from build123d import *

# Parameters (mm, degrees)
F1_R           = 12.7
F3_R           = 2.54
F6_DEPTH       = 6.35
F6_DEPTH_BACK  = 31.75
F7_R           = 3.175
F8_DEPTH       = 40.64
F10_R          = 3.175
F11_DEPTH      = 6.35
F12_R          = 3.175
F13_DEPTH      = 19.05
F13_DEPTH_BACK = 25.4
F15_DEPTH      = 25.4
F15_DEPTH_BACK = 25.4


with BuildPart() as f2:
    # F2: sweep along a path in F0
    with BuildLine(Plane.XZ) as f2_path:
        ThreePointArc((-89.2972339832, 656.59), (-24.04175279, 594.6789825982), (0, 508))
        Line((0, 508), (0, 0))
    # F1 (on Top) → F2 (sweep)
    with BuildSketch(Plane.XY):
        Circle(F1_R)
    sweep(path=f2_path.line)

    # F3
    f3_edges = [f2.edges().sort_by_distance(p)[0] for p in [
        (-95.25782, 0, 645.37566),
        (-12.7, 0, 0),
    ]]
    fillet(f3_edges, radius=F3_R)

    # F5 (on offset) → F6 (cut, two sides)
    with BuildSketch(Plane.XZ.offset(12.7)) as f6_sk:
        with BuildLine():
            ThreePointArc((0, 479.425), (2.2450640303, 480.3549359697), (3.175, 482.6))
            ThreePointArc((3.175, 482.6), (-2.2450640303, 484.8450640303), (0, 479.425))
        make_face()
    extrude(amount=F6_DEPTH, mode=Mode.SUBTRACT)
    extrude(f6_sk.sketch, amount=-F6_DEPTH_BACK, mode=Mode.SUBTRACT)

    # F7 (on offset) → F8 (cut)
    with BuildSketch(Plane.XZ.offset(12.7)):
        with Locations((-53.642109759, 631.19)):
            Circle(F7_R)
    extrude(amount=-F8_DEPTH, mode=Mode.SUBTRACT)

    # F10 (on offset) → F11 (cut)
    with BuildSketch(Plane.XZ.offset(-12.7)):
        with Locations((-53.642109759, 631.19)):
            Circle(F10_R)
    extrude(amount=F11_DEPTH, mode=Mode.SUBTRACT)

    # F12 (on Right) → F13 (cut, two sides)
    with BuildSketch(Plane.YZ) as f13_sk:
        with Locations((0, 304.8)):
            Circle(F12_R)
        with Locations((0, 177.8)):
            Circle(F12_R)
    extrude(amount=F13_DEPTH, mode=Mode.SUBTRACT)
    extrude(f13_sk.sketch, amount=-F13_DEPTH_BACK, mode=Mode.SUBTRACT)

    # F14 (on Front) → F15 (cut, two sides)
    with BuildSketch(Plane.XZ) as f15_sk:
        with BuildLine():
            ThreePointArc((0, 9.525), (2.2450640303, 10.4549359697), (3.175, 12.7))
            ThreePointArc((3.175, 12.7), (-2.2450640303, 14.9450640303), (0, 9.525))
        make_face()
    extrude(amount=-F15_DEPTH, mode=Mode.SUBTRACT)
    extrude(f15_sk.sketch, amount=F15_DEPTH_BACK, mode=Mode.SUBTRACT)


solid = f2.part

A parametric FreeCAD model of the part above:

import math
import FreeCAD as App
import Part
import Sketcher
from FreeCAD import Vector
Q = App.Units.Quantity


def edges_at(feature, points):
    """Names of the edges that pass closest to the given points."""
    edges = feature.Shape.Edges
    near = lambda p: min(range(len(edges)), key=lambda i: edges[i].distToShape(Part.Vertex(*p))[0])
    return sorted({f"Edge{near(p) + 1}" for p in points})

doc = App.newDocument("Part")
params = doc.addObject("Spreadsheet::Sheet", "Params")
for row, (alias, value) in enumerate([
    ("sketch1_diameter", "1 in"),
    ("sketch2_height", "20 in"),
    ("sketch2_radius", "6.625 in"),
    ("fillet_radius", "0.1 in"),
    ("sketch3_radius", "0.125 in"),
    ("sketch4_diameter", "0.25 in"),
    ("pocket2_length", "1.6 in"),
    ("sketch5_diameter", "0.25 in"),
    ("pocket3_length", "0.25 in"),
    ("sketch6_diameter", "0.25 in"),
    ("sketch7_radius", "0.125 in"),
], start=1):
    params.set(f"A{row}", alias)
    params.set(f"B{row}", "=" + value)
    params.setAlias(f"B{row}", alias)

body = doc.addObject("PartDesign::Body", "Body")

# Sketch on XY plane
sketch1 = body.newObject("Sketcher::SketchObject", "Sketch")
sketch1.AttachmentSupport = (doc.getObject("XY_Plane"), [""])
sketch1.MapMode = "FlatFace"
sketch1.addGeometry(Part.Circle(Vector(0, 0, 0), Vector(0, 0, 1), 13), False)
sketch1.addConstraint([
    Sketcher.Constraint("Coincident", 0, 3, -1, 1),
    Sketcher.Constraint("Diameter", 0, Q("1 in")),
])
sketch1.setExpression("Constraints[1]", "Params.sketch1_diameter")

# Sketch on XZ plane
sketch2 = body.newObject("Sketcher::SketchObject", "Sketch001")
sketch2.AttachmentSupport = (doc.getObject("XZ_Plane"), [""])
sketch2.MapMode = "FlatFace"
sketch2.addGeometry([
    Part.ArcOfCircle(Part.Circle(Vector(-168, 508, 0), Vector(0, 0, 1), 168), math.radians(0), math.radians(62)),
    Part.LineSegment(Vector(0, 508, 0), Vector(0, 0, 0)),
], False)
sketch2.addConstraint([
    Sketcher.Constraint("Tangent", 0, 1, 1, 1),
    Sketcher.Constraint("Vertical", 1),
    Sketcher.Constraint("Coincident", 1, 2, -1, 1),
    Sketcher.Constraint("DistanceY", 1, 2, 1, 1, Q("20 in")),
    Sketcher.Constraint("Radius", 0, Q("6.625 in")),
    Sketcher.Constraint("DistanceY", -1, 1, 0, 2, Q("25.85 in")),
])
sketch2.setExpression("Constraints[3]", "Params.sketch2_height")
sketch2.setExpression("Constraints[4]", "Params.sketch2_radius")
doc.recompute()

additivepipe = body.newObject("PartDesign::AdditivePipe", "AdditivePipe")
additivepipe.Profile = sketch1
additivepipe.Spine = (sketch2, ["Edge1", "Edge2"])
doc.recompute()

fillet = body.newObject("PartDesign::Fillet", "Fillet")
fillet.Base = (additivepipe, edges_at(additivepipe, [(-95.258, 0, 645.376), (-12.7, 0, 0)]))
fillet.setExpression("Radius", "Params.fillet_radius")

# Sketch on XZ plane
sketch3 = body.newObject("Sketcher::SketchObject", "Sketch002")
sketch3.AttachmentSupport = (doc.getObject("XZ_Plane"), [""])
sketch3.MapMode = "FlatFace"
sketch3.AttachmentOffset = App.Placement(Vector(0, 0, 0.5 * 25.4), App.Rotation())
sketch3.addGeometry([
    Part.ArcOfCircle(Part.Circle(Vector(0, 482.6, 0), Vector(0, 0, 1), 3.2), math.radians(-90), math.radians(0)),
    Part.ArcOfCircle(Part.Circle(Vector(0, 482.6, 0), Vector(0, 0, 1), 3.2), math.radians(0), math.radians(270)),
], False)
sketch3.addConstraint([
    Sketcher.Constraint("Tangent", 0, 1, 1, 2),
    Sketcher.Constraint("Coincident", 1, 1, 0, 2),
    Sketcher.Constraint("PointOnObject", 0, 3, -2),
    Sketcher.Constraint("PointOnObject", 0, 1, -2),
    Sketcher.Constraint("Horizontal", 0, 3, 1, 1),
    Sketcher.Constraint("DistanceY", -1, 1, 0, 3, Q("19 in")),
    Sketcher.Constraint("Radius", 0, Q("0.125 in")),
])
sketch3.setExpression("Constraints[6]", "Params.sketch3_radius")
pocket1 = body.newObject("PartDesign::Pocket", "Pocket")
pocket1.Profile = sketch3
pocket1.Type = "ThroughAll"
pocket1.Midplane = True

# Sketch on XZ plane
sketch4 = body.newObject("Sketcher::SketchObject", "Sketch003")
sketch4.AttachmentSupport = (doc.getObject("XZ_Plane"), [""])
sketch4.MapMode = "FlatFace"
sketch4.AttachmentOffset = App.Placement(Vector(0, 0, 0.5 * 25.4), App.Rotation())
sketch4.addGeometry(Part.Circle(Vector(-53.6, 631.2, 0), Vector(0, 0, 1), 3.2), False)
sketch4.addConstraint([
    Sketcher.Constraint("Diameter", 0, Q("0.25 in")),
    Sketcher.Constraint("DistanceY", -1, 1, 0, 3, Q("24.85 in")),
    Sketcher.Constraint("DistanceX", 0, 3, -1, 1, Q("53.64211 mm")),
])
sketch4.setExpression("Constraints[0]", "Params.sketch4_diameter")
pocket2 = body.newObject("PartDesign::Pocket", "Pocket001")
pocket2.Profile = sketch4
pocket2.setExpression("Length", "Params.pocket2_length")

# Sketch on XZ plane
sketch5 = body.newObject("Sketcher::SketchObject", "Sketch004")
sketch5.AttachmentSupport = (doc.getObject("XZ_Plane"), [""])
sketch5.MapMode = "FlatFace"
sketch5.AttachmentOffset = App.Placement(Vector(0, 0, -0.5 * 25.4), App.Rotation())
sketch5.addGeometry(Part.Circle(Vector(-53.6, 631.2, 0), Vector(0, 0, 1), 3.2), False)
sketch5.addConstraint([
    Sketcher.Constraint("Diameter", 0, Q("0.25 in")),
    Sketcher.Constraint("DistanceY", -1, 1, 0, 3, Q("24.85 in")),
    Sketcher.Constraint("DistanceX", 0, 3, -1, 1, Q("53.64211 mm")),
])
sketch5.setExpression("Constraints[0]", "Params.sketch5_diameter")
pocket3 = body.newObject("PartDesign::Pocket", "Pocket002")
pocket3.Profile = sketch5
pocket3.setExpression("Length", "Params.pocket3_length")
pocket3.Reversed = True

# Sketch on YZ plane
sketch6 = body.newObject("Sketcher::SketchObject", "Sketch005")
sketch6.AttachmentSupport = (doc.getObject("YZ_Plane"), [""])
sketch6.MapMode = "FlatFace"
sketch6.addGeometry([
    Part.Circle(Vector(0, 304.8, 0), Vector(0, 0, 1), 3.2),
    Part.Circle(Vector(0, 177.8, 0), Vector(0, 0, 1), 3.2),
], False)
sketch6.addConstraint([
    Sketcher.Constraint("Equal", 0, 1),
    Sketcher.Constraint("PointOnObject", 0, 3, -2),
    Sketcher.Constraint("PointOnObject", 1, 3, -2),
    Sketcher.Constraint("Diameter", 0, Q("0.25 in")),
    Sketcher.Constraint("DistanceY", -1, 1, 0, 3, Q("12 in")),
    Sketcher.Constraint("DistanceY", -1, 1, 1, 3, Q("7 in")),
])
sketch6.setExpression("Constraints[3]", "Params.sketch6_diameter")
pocket4 = body.newObject("PartDesign::Pocket", "Pocket003")
pocket4.Profile = sketch6
pocket4.Type = "ThroughAll"
pocket4.Midplane = True

# Sketch on XZ plane
sketch7 = body.newObject("Sketcher::SketchObject", "Sketch006")
sketch7.AttachmentSupport = (doc.getObject("XZ_Plane"), [""])
sketch7.MapMode = "FlatFace"
sketch7.addGeometry([
    Part.ArcOfCircle(Part.Circle(Vector(0, 12.7, 0), Vector(0, 0, 1), 3.2), math.radians(-90), math.radians(0)),
    Part.ArcOfCircle(Part.Circle(Vector(0, 12.7, 0), Vector(0, 0, 1), 3.2), math.radians(0), math.radians(270)),
], False)
sketch7.addConstraint([
    Sketcher.Constraint("Tangent", 0, 1, 1, 2),
    Sketcher.Constraint("Coincident", 1, 1, 0, 2),
    Sketcher.Constraint("PointOnObject", 0, 3, -2),
    Sketcher.Constraint("PointOnObject", 0, 1, -2),
    Sketcher.Constraint("Horizontal", 0, 3, 1, 1),
    Sketcher.Constraint("Radius", 0, Q("0.125 in")),
    Sketcher.Constraint("DistanceY", -1, 1, 0, 3, Q("0.5 in")),
])
sketch7.setExpression("Constraints[5]", "Params.sketch7_radius")
pocket5 = body.newObject("PartDesign::Pocket", "Pocket004")
pocket5.Profile = sketch7
pocket5.Type = "ThroughAll"
pocket5.Midplane = True

doc.recompute()
